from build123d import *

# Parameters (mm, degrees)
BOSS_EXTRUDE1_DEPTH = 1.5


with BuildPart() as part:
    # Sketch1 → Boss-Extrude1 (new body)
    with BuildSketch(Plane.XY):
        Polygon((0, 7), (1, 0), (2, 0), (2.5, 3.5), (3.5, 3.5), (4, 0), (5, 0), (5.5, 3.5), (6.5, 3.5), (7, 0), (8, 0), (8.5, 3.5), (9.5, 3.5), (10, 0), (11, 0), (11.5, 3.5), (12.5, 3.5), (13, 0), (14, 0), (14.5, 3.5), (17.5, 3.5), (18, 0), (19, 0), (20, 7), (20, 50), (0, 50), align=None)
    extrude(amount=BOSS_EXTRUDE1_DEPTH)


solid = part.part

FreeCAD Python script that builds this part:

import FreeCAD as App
import Part
import Sketcher

V = App.Vector

doc = App.newDocument("Part")
body = doc.addObject("PartDesign::Body", "Body")

# Sketch on XY plane
sketch1 = body.newObject("Sketcher::SketchObject", "Sketch")
sketch1.AttachmentSupport = (doc.getObject("XY_Plane"), [""])
sketch1.MapMode = "FlatFace"
sketch1.addGeometry(Part.LineSegment(V(0, 7, 0), V(1, 0, 0)), False)
sketch1.addGeometry(Part.LineSegment(V(1, 0, 0), V(2, 0, 0)), False)
sketch1.addGeometry(Part.LineSegment(V(2, 0, 0), V(2.5, 3.5, 0)), False)
sketch1.addGeometry(Part.LineSegment(V(2.5, 3.5, 0), V(3.5, 3.5, 0)), False)
sketch1.addGeometry(Part.LineSegment(V(3.5, 3.5, 0), V(4, 0, 0)), False)
sketch1.addGeometry(Part.LineSegment(V(4, 0, 0), V(5, 0, 0)), False)
sketch1.addGeometry(Part.LineSegment(V(5, 0, 0), V(5.5, 3.5, 0)), False)
sketch1.addGeometry(Part.LineSegment(V(5.5, 3.5, 0), V(6.5, 3.5, 0)), False)
sketch1.addGeometry(Part.LineSegment(V(6.5, 3.5, 0), V(7, 0, 0)), False)
sketch1.addGeometry(Part.LineSegment(V(7, 0, 0), V(8, 0, 0)), False)
sketch1.addGeometry(Part.LineSegment(V(8, 0, 0), V(8.5, 3.5, 0)), False)
sketch1.addGeometry(Part.LineSegment(V(8.5, 3.5, 0), V(9.5, 3.5, 0)), False)
sketch1.addGeometry(Part.LineSegment(V(9.5, 3.5, 0), V(10, 0, 0)), False)
sketch1.addGeometry(Part.LineSegment(V(10, 0, 0), V(11, 0, 0)), False)
sketch1.addGeometry(Part.LineSegment(V(11, 0, 0), V(11.5, 3.5, 0)), False)
sketch1.addGeometry(Part.LineSegment(V(11.5, 3.5, 0), V(12.5, 3.5, 0)), False)
sketch1.addGeometry(Part.LineSegment(V(12.5, 3.5, 0), V(13, 0, 0)), False)
sketch1.addGeometry(Part.LineSegment(V(13, 0, 0), V(14, 0, 0)), False)
sketch1.addGeometry(Part.LineSegment(V(14, 0, 0), V(14.5, 3.5, 0)), False)
sketch1.addGeometry(Part.LineSegment(V(14.5, 3.5, 0), V(17.5, 3.5, 0)), False)
sketch1.addGeometry(Part.LineSegment(V(17.5, 3.5, 0), V(18, 0, 0)), False)
sketch1.addGeometry(Part.LineSegment(V(18, 0, 0), V(19, 0, 0)), False)
sketch1.addGeometry(Part.LineSegment(V(19, 0, 0), V(20, 7, 0)), False)
sketch1.addGeometry(Part.LineSegment(V(20, 7, 0), V(20, 50, 0)), False)
sketch1.addGeometry(Part.LineSegment(V(20, 50, 0), V(0, 50, 0)), False)
sketch1.addGeometry(Part.LineSegment(V(0, 50, 0), V(0, 7, 0)), False)
sketch1.addConstraint(Sketcher.Constraint("Coincident", 0, 2, 1, 1))
sketch1.addConstraint(Sketcher.Constraint("Coincident", 1, 2, 2, 1))
sketch1.addConstraint(Sketcher.Constraint("Coincident", 2, 2, 3, 1))
sketch1.addConstraint(Sketcher.Constraint("Coincident", 3, 2, 4, 1))
sketch1.addConstraint(Sketcher.Constraint("Coincident", 4, 2, 5, 1))
sketch1.addConstraint(Sketcher.Constraint("Coincident", 5, 2, 6, 1))
sketch1.addConstraint(Sketcher.Constraint("Coincident", 6, 2, 7, 1))
sketch1.addConstraint(Sketcher.Constraint("Coincident", 7, 2, 8, 1))
sketch1.addConstraint(Sketcher.Constraint("Coincident", 8, 2, 9, 1))
sketch1.addConstraint(Sketcher.Constraint("Coincident", 9, 2, 10, 1))
sketch1.addConstraint(Sketcher.Constraint("Coincident", 10, 2, 11, 1))
sketch1.addConstraint(Sketcher.Constraint("Coincident", 11, 2, 12, 1))
sketch1.addConstraint(Sketcher.Constraint("Coincident", 12, 2, 13, 1))
sketch1.addConstraint(Sketcher.Constraint("Coincident", 13, 2, 14, 1))
sketch1.addConstraint(Sketcher.Constraint("Coincident", 14, 2, 15, 1))
sketch1.addConstraint(Sketcher.Constraint("Coincident", 15, 2, 16, 1))
sketch1.addConstraint(Sketcher.Constraint("Coincident", 16, 2, 17, 1))
sketch1.addConstraint(Sketcher.Constraint("Coincident", 17, 2, 18, 1))
sketch1.addConstraint(Sketcher.Constraint("Coincident", 18, 2, 19, 1))
sketch1.addConstraint(Sketcher.Constraint("Coincident", 19, 2, 20, 1))
sketch1.addConstraint(Sketcher.Constraint("Coincident", 20, 2, 21, 1))
sketch1.addConstraint(Sketcher.Constraint("Coincident", 21, 2, 22, 1))
sketch1.addConstraint(Sketcher.Constraint("Coincident", 22, 2, 23, 1))
sketch1.addConstraint(Sketcher.Constraint("Coincident", 23, 2, 24, 1))
sketch1.addConstraint(Sketcher.Constraint("Coincident", 24, 2, 25, 1))
sketch1.addConstraint(Sketcher.Constraint("Coincident", 25, 2, 0, 1))
sketch1.addConstraint(Sketcher.Constraint("Horizontal", 1))
sketch1.addConstraint(Sketcher.Constraint("Horizontal", 3))
sketch1.addConstraint(Sketcher.Constraint("Horizontal", 5))
sketch1.addConstraint(Sketcher.Constraint("Horizontal", 7))
sketch1.addConstraint(Sketcher.Constraint("Horizontal", 9))
sketch1.addConstraint(Sketcher.Constraint("Horizontal", 11))
sketch1.addConstraint(Sketcher.Constraint("Horizontal", 13))
sketch1.addConstraint(Sketcher.Constraint("Horizontal", 15))
sketch1.addConstraint(Sketcher.Constraint("Horizontal", 17))
sketch1.addConstraint(Sketcher.Constraint("Horizontal", 19))
sketch1.addConstraint(Sketcher.Constraint("Horizontal", 21))
sketch1.addConstraint(Sketcher.Constraint("Vertical", 23))
sketch1.addConstraint(Sketcher.Constraint("Horizontal", 24))
sketch1.addConstraint(Sketcher.Constraint("Vertical", 25))
sketch1.addConstraint(Sketcher.Constraint("PointOnObject", 0, 2, -1))
sketch1.addConstraint(Sketcher.Constraint("PointOnObject", 4, 2, -1))
sketch1.addConstraint(Sketcher.Constraint("PointOnObject", 8, 2, -1))
sketch1.addConstraint(Sketcher.Constraint("PointOnObject", 12, 2, -1))
sketch1.addConstraint(Sketcher.Constraint("PointOnObject", 16, 2, -1))
sketch1.addConstraint(Sketcher.Constraint("PointOnObject", 20, 2, -1))
sketch1.addConstraint(Sketcher.Constraint("PointOnObject", 24, 2, -2))
sketch1.addConstraint(Sketcher.Constraint("Parallel", 0, 4))
sketch1.addConstraint(Sketcher.Constraint("Parallel", 2, 6))
sketch1.addConstraint(Sketcher.Constraint("Parallel", 4, 8))
sketch1.addConstraint(Sketcher.Constraint("Parallel", 6, 10))
sketch1.addConstraint(Sketcher.Constraint("Parallel", 8, 12))
sketch1.addConstraint(Sketcher.Constraint("Parallel", 10, 14))
sketch1.addConstraint(Sketcher.Constraint("Parallel", 12, 16))
sketch1.addConstraint(Sketcher.Constraint("Parallel", 14, 18))
sketch1.addConstraint(Sketcher.Constraint("Parallel", 16, 20))
sketch1.addConstraint(Sketcher.Constraint("Parallel", 18, 22))
sketch1.addConstraint(Sketcher.Constraint("Horizontal", 3, 2, 6, 2))
sketch1.addConstraint(Sketcher.Constraint("Horizontal", 7, 2, 10, 2))
sketch1.addConstraint(Sketcher.Constraint("Horizontal", 11, 2, 14, 2))
sketch1.addConstraint(Sketcher.Constraint("Horizontal", 15, 2, 18, 2))
sketch1.addConstraint(Sketcher.Constraint("Horizontal", 22, 2, 25, 2))
sketch1.addConstraint(Sketcher.Constraint("Equal", 1, 3))
sketch1.addConstraint(Sketcher.Constraint("Equal", 3, 5))
sketch1.addConstraint(Sketcher.Constraint("Equal", 5, 7))
sketch1.addConstraint(Sketcher.Constraint("Equal", 7, 9))
sketch1.addConstraint(Sketcher.Constraint("Equal", 9, 11))
sketch1.addConstraint(Sketcher.Constraint("Equal", 11, 13))
sketch1.addConstraint(Sketcher.Constraint("Equal", 13, 15))
sketch1.addConstraint(Sketcher.Constraint("Equal", 15, 17))
sketch1.addConstraint(Sketcher.Constraint("Equal", 17, 21))
sketch1.addConstraint(Sketcher.Constraint("Equal", 2, 4))
sketch1.addConstraint(Sketcher.Constraint("DistanceX", 1, 1, 1, 2, 1.0))
sketch1.addConstraint(Sketcher.Constraint("DistanceX", 19, 1, 19, 2, 3.0))
sketch1.addConstraint(Sketcher.Constraint("DistanceX", 24, 2, 24, 1, 20.0))
sketch1.addConstraint(Sketcher.Constraint("DistanceY", 23, 1, 23, 2, 43.0))
sketch1.addConstraint(Sketcher.Constraint("DistanceX", -1, 1, 0, 2, 1.0))
sketch1.addConstraint(Sketcher.Constraint("DistanceY", -1, 1, 22, 2, 7.0))
pad1 = body.newObject("PartDesign::Pad", "Pad")
pad1.Profile = sketch1
pad1.Length = 1.5

doc.recompute()
